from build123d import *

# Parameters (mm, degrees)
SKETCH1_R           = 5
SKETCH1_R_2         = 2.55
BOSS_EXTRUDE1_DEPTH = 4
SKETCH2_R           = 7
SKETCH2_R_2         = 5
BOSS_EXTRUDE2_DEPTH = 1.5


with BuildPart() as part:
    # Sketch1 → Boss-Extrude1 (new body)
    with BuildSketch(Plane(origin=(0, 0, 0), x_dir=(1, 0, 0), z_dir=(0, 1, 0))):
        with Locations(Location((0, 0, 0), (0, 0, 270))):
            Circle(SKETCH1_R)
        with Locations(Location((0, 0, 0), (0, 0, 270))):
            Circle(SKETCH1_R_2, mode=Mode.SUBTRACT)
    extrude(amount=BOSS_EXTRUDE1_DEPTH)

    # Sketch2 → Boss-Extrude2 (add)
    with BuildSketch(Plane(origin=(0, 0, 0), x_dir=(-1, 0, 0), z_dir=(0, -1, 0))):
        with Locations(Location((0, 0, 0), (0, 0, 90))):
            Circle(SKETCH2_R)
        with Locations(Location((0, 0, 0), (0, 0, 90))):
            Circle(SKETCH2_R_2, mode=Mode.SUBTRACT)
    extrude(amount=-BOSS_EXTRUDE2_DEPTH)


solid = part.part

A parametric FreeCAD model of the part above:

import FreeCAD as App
import Part
import Sketcher
Q = App.Units.Quantity

doc = App.newDocument("Part")
body = doc.addObject("PartDesign::Body", "Body")

# Sketch on XZ plane
sketch1 = body.newObject("Sketcher::SketchObject", "Sketch")
sketch1.AttachmentSupport = (doc.getObject("XZ_Plane"), [""])
sketch1.MapMode = "FlatFace"
sketch1.addGeometry([
    Part.Circle(App.Vector(0, 0, 0), App.Vector(0, 0, 1), 5),
    Part.Circle(App.Vector(0, 0, 0), App.Vector(0, 0, 1), 2.5),
], False)
sketch1.addConstraint([
    Sketcher.Constraint("Coincident", 0, 3, -1, 1),
    Sketcher.Constraint("Coincident", 1, 3, -1, 1),
    Sketcher.Constraint("Diameter", 0, Q("10 mm")),
    Sketcher.Constraint("Diameter", 1, Q("5.1 mm")),
])
pad1 = body.newObject("PartDesign::Pad", "Pad")
pad1.Profile = sketch1
pad1.Length = 4
pad1.Reversed = True

# Sketch on XZ plane
sketch2 = body.newObject("Sketcher::SketchObject", "Sketch001")
sketch2.AttachmentSupport = (doc.getObject("XZ_Plane"), [""])
sketch2.MapMode = "FlatFace"
sketch2.addGeometry([
    Part.Circle(App.Vector(0, 0, 0), App.Vector(0, 0, 1), 7),
    Part.Circle(App.Vector(0, 0, 0), App.Vector(0, 0, 1), 5),
], False)
sketch2.addConstraint([
    Sketcher.Constraint("Coincident", 0, 3, -1, 1),
    Sketcher.Constraint("Coincident", 1, 3, -1, 1),
    Sketcher.Constraint("Diameter", 0, Q("14 mm")),
    Sketcher.Constraint("Diameter", 1, Q("10 mm")),
])
pad2 = body.newObject("PartDesign::Pad", "Pad001")
pad2.Profile = sketch2
pad2.Length = 1.5
pad2.Reversed = True

doc.recompute()
